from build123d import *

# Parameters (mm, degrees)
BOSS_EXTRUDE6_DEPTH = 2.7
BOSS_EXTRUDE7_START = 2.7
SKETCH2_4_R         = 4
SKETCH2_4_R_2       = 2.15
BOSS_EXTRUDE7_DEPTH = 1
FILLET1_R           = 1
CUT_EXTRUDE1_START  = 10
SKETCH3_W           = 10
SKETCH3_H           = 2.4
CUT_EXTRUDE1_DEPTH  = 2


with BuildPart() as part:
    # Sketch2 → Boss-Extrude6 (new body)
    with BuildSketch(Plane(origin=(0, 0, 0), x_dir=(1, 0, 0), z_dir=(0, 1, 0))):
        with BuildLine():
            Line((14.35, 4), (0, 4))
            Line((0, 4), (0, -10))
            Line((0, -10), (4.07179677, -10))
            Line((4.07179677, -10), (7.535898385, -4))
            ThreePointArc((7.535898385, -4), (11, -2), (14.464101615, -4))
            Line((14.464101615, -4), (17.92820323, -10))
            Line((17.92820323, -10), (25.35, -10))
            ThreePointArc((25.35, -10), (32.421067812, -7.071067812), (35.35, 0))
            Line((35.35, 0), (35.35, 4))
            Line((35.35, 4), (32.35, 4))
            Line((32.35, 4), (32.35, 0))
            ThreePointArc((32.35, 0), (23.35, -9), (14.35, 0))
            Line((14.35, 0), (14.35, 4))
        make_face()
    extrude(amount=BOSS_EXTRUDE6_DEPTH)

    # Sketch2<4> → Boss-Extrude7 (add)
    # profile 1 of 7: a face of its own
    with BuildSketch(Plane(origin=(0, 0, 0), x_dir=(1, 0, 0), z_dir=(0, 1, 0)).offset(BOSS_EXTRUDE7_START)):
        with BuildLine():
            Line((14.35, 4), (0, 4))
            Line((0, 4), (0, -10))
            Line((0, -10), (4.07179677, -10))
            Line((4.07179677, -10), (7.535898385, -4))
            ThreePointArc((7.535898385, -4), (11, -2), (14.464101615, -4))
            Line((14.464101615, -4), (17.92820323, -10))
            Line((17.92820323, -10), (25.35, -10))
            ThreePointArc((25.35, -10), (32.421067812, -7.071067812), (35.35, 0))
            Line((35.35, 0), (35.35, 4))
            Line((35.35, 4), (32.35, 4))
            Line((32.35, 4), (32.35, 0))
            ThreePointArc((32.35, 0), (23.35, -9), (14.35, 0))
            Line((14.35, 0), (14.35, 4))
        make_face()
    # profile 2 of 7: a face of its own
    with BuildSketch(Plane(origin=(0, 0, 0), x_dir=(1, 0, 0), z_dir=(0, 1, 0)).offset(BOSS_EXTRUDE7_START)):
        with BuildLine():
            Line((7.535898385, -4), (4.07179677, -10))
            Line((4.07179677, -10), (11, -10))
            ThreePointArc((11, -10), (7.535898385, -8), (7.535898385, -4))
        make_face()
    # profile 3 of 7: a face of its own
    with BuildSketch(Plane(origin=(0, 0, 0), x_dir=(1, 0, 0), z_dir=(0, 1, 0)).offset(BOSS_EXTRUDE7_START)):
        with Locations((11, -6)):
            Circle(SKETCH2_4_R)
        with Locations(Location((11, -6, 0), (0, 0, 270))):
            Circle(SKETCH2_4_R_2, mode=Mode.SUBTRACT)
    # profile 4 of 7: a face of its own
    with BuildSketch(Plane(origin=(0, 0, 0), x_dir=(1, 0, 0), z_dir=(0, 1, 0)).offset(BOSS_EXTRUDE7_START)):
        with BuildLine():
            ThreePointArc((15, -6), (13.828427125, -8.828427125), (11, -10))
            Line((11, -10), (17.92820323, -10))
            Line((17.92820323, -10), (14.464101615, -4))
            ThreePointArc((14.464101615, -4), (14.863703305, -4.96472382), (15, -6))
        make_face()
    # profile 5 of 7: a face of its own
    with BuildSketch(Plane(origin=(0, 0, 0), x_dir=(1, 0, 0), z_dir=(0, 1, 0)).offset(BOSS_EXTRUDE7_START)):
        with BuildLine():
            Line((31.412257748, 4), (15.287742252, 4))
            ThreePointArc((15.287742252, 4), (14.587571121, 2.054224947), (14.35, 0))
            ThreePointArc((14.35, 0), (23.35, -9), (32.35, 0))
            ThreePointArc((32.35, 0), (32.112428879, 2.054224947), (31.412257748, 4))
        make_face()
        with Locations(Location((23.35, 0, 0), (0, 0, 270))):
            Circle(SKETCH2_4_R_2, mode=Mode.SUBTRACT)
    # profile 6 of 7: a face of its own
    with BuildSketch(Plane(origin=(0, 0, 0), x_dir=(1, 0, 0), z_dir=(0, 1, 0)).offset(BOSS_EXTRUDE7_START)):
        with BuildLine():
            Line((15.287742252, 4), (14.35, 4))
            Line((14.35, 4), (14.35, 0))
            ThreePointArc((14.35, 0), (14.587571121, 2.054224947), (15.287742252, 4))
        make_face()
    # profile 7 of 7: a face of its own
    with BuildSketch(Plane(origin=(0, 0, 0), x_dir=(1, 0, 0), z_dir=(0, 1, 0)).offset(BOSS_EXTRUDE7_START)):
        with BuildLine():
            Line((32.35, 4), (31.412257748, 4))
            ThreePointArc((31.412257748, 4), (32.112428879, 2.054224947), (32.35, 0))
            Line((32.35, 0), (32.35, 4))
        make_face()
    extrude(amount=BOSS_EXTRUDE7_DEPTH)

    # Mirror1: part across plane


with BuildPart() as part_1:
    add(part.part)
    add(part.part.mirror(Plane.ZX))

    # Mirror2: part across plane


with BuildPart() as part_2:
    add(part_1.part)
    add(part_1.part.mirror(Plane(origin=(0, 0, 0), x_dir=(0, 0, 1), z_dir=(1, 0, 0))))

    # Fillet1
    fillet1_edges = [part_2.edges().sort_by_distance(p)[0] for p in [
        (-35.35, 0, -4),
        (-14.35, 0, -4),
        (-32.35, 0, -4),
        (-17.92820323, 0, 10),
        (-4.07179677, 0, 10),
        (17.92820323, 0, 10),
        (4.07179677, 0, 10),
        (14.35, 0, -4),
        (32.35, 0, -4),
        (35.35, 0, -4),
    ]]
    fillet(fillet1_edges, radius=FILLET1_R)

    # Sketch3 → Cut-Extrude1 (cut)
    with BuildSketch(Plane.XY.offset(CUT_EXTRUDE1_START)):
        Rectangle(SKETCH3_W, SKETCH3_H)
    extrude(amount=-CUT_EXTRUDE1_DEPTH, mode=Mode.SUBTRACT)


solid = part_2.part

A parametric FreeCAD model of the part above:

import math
import FreeCAD as App
import Part
import Sketcher
from FreeCAD import Vector
Q = App.Units.Quantity


def edges_at(feature, points):
    """Names of the edges that pass closest to the given points."""
    edges = feature.Shape.Edges
    near = lambda p: min(range(len(edges)), key=lambda i: edges[i].distToShape(Part.Vertex(*p))[0])
    return sorted({f"Edge{near(p) + 1}" for p in points})

doc = App.newDocument("Part")
body = doc.addObject("PartDesign::Body", "Body")

# Sketch on XZ plane
sketch1 = body.newObject("Sketcher::SketchObject", "Sketch")
sketch1.AttachmentSupport = (doc.getObject("XZ_Plane"), [""])
sketch1.MapMode = "FlatFace"
sketch1.addGeometry([
    Part.LineSegment(Vector(14.35, -4, 0), Vector(0, -4, 0)),  # 0
    Part.LineSegment(Vector(0, -4, 0), Vector(0, 10, 0)),  # 1
    Part.LineSegment(Vector(0, 10, 0), Vector(4.071797, 10, 0)),  # 2
    Part.LineSegment(Vector(4.071797, 10, 0), Vector(7.535898, 4, 0)),  # 3
    Part.ArcOfCircle(Part.Circle(Vector(11, 6, 0), Vector(0, 0, 1), 4), math.radians(-150), math.radians(-30)),  # 4
    Part.LineSegment(Vector(14.464102, 4, 0), Vector(17.928203, 10, 0)),  # 5
    Part.LineSegment(Vector(17.928203, 10, 0), Vector(25.35, 10, 0)),  # 6
    Part.ArcOfCircle(Part.Circle(Vector(25.35, 0, 0), Vector(0, 0, 1), 10), math.radians(0), math.radians(90)),  # 7
    Part.LineSegment(Vector(35.35, 0, 0), Vector(35.35, -4, 0)),  # 8
    Part.LineSegment(Vector(35.35, -4, 0), Vector(32.35, -4, 0)),  # 9
    Part.LineSegment(Vector(32.35, -4, 0), Vector(32.35, 0, 0)),  # 10
    Part.ArcOfCircle(Part.Circle(Vector(23.35, 0, 0), Vector(0, 0, 1), 9), math.radians(0), math.radians(180)),  # 11
    Part.LineSegment(Vector(14.35, 0, 0), Vector(14.35, -4, 0)),  # 12
], False)
sketch1.addConstraint([
    Sketcher.Constraint("Coincident", 0, 2, 1, 1),
    Sketcher.Constraint("Coincident", 1, 2, 2, 1),
    Sketcher.Constraint("Coincident", 2, 2, 3, 1),
    Sketcher.Constraint("Tangent", 3, 2, 4, 1),
    Sketcher.Constraint("Tangent", 4, 2, 5, 1),
    Sketcher.Constraint("Coincident", 5, 2, 6, 1),
    Sketcher.Constraint("Tangent", 6, 2, 7, 2),
    Sketcher.Constraint("Tangent", 7, 1, 8, 1),
    Sketcher.Constraint("Coincident", 8, 2, 9, 1),
    Sketcher.Constraint("Coincident", 9, 2, 10, 1),
    Sketcher.Constraint("Tangent", 10, 2, 11, 1),
    Sketcher.Constraint("Tangent", 11, 2, 12, 1),
    Sketcher.Constraint("Coincident", 12, 2, 0, 1),
    Sketcher.Constraint("Horizontal", 0),
    Sketcher.Constraint("Vertical", 1),
    Sketcher.Constraint("Horizontal", 2),
    Sketcher.Constraint("Horizontal", 6),
    Sketcher.Constraint("Vertical", 8),
    Sketcher.Constraint("Horizontal", 9),
    Sketcher.Constraint("Vertical", 10),
    Sketcher.Constraint("Vertical", 12),
    Sketcher.Constraint("PointOnObject", 7, 3, -1),
    Sketcher.Constraint("PointOnObject", 11, 3, -1),
    Sketcher.Constraint("PointOnObject", 0, 2, -2),
    Sketcher.Constraint("Horizontal", 3, 2, 4, 2),
    Sketcher.Constraint("Horizontal", 2, 2, 5, 2),
    Sketcher.Constraint("Horizontal", 0, 2, 8, 2),
    Sketcher.Constraint("Radius", 4, 4.0),
    Sketcher.Constraint("Radius", 7, 10.0),
    Sketcher.Constraint("Radius", 11, 9.0),
    Sketcher.Constraint("DistanceX", 9, 2, 9, 1, 3.0),
    Sketcher.Constraint("DistanceY", 1, 1, 1, 2, 14.0),
    Sketcher.Constraint("Angle", 3, Q("-60 deg")),
    Sketcher.Constraint("DistanceX", -1, 1, 4, 3, 11.0),
    Sketcher.Constraint("DistanceY", -1, 1, 4, 3, 6.0),
    Sketcher.Constraint("DistanceX", 0, 2, 0, 1, 14.35),
])
pad1 = body.newObject("PartDesign::Pad", "Pad")
pad1.Profile = sketch1
pad1.Length = 2.7
pad1.Reversed = True

# Sketch on XZ plane
sketch2 = body.newObject("Sketcher::SketchObject", "Sketch001")
sketch2.AttachmentSupport = (doc.getObject("XZ_Plane"), [""])
sketch2.MapMode = "FlatFace"
sketch2.AttachmentOffset = App.Placement(Vector(0, 0, -2.7), App.Rotation())
sketch2.addGeometry([
    Part.LineSegment(Vector(0, -4, 0), Vector(0, 10, 0)),  # 0
    Part.LineSegment(Vector(0, 10, 0), Vector(25.35, 10, 0)),  # 1
    Part.ArcOfCircle(Part.Circle(Vector(25.35, 0, 0), Vector(0, 0, 1), 10), math.radians(0), math.radians(90)),  # 2
    Part.LineSegment(Vector(35.35, 0, 0), Vector(35.35, -4, 0)),  # 3
    Part.LineSegment(Vector(35.35, -4, 0), Vector(0, -4, 0)),  # 4
    Part.Circle(Vector(11, 6, 0), Vector(0, 0, 1), 2.15),  # 5
    Part.Circle(Vector(23.35, 0, 0), Vector(0, 0, 1), 2.15),  # 6
], False)
sketch2.addConstraint([
    Sketcher.Constraint("Coincident", 0, 2, 1, 1),
    Sketcher.Constraint("Tangent", 1, 2, 2, 2),
    Sketcher.Constraint("Tangent", 2, 1, 3, 1),
    Sketcher.Constraint("Coincident", 3, 2, 4, 1),
    Sketcher.Constraint("Coincident", 4, 2, 0, 1),
    Sketcher.Constraint("Vertical", 0),
    Sketcher.Constraint("Horizontal", 1),
    Sketcher.Constraint("Vertical", 3),
    Sketcher.Constraint("Horizontal", 4),
    Sketcher.Constraint("Equal", 5, 6),
    Sketcher.Constraint("PointOnObject", 2, 3, -1),
    Sketcher.Constraint("PointOnObject", 6, 3, -1),
    Sketcher.Constraint("PointOnObject", 0, 2, -2),
    Sketcher.Constraint("Radius", 2, 10.0),
    Sketcher.Constraint("Diameter", 5, 4.3),
    Sketcher.Constraint("DistanceY", 0, 1, 0, 2, 14.0),
    Sketcher.Constraint("DistanceX", -1, 1, 5, 3, 11.0),
    Sketcher.Constraint("DistanceY", -1, 1, 5, 3, 6.0),
    Sketcher.Constraint("DistanceX", 6, 3, 2, 3, 2.0),
    Sketcher.Constraint("DistanceX", 1, 1, 1, 2, 25.35),
])
pad2 = body.newObject("PartDesign::Pad", "Pad001")
pad2.Profile = sketch2
pad2.Length = 1
pad2.Reversed = True
body2 = doc.addObject("PartDesign::Body", "Body001")
doc.recompute()

body2.BaseFeature = body
doc.recompute()

mirroring = doc.addObject("Part::Mirroring", "Mirroring")
mirroring.Source = body
mirroring.Base = Vector(0, 0, 0)
mirroring.Normal = Vector(0, 1, 0)
body3 = doc.addObject("PartDesign::Body", "Body002")
body3.BaseFeature = mirroring
boolean = body2.newObject("PartDesign::Boolean", "Boolean")
boolean.Type = "Fuse"
boolean.addObjects([body3])
doc.recompute()
body4 = doc.addObject("PartDesign::Body", "Body003")
doc.recompute()

body4.BaseFeature = body2
doc.recompute()

mirroring2 = doc.addObject("Part::Mirroring", "Mirroring001")
mirroring2.Source = body2
mirroring2.Base = Vector(0, 0, 0)
mirroring2.Normal = Vector(1, 0, 0)
body5 = doc.addObject("PartDesign::Body", "Body004")
body5.BaseFeature = mirroring2
boolean2 = body4.newObject("PartDesign::Boolean", "Boolean001")
boolean2.Type = "Fuse"
boolean2.addObjects([body5])
doc.recompute()

fillet = body4.newObject("PartDesign::Fillet", "Fillet")
fillet.Base = (boolean2, edges_at(boolean2, [
    (-35.35, 0, -4),
    (-14.35, 0, -4),
    (-32.35, 0, -4),
    (-17.928, 0, 10),
    (-4.072, 0, 10),
    (17.928, 0, 10),
    (4.072, 0, 10),
    (14.35, 0, -4),
    (32.35, 0, -4),
    (35.35, 0, -4),
]))
fillet.Radius = 1

# Sketch on XY plane
sketch3 = body4.newObject("Sketcher::SketchObject", "Sketch002")
sketch3.AttachmentSupport = (doc.getObject("XY_Plane003"), [""])
sketch3.MapMode = "FlatFace"
sketch3.AttachmentOffset = App.Placement(Vector(0, 0, 10), App.Rotation())
sketch3.addGeometry([
    Part.LineSegment(Vector(-5, 1.2, 0), Vector(-5, -1.2, 0)),
    Part.LineSegment(Vector(-5, -1.2, 0), Vector(5, -1.2, 0)),
    Part.LineSegment(Vector(5, -1.2, 0), Vector(5, 1.2, 0)),
    Part.LineSegment(Vector(5, 1.2, 0), Vector(-5, 1.2, 0)),
], False)
sketch3.addConstraint([
    Sketcher.Constraint("Coincident", 0, 2, 1, 1),
    Sketcher.Constraint("Coincident", 1, 2, 2, 1),
    Sketcher.Constraint("Coincident", 2, 2, 3, 1),
    Sketcher.Constraint("Coincident", 3, 2, 0, 1),
    Sketcher.Constraint("Vertical", 0),
    Sketcher.Constraint("Horizontal", 1),
    Sketcher.Constraint("Vertical", 2),
    Sketcher.Constraint("Horizontal", 3),
    Sketcher.Constraint("Symmetric", 0, 2, 2, 2, -1, 1),
    Sketcher.Constraint("DistanceX", 1, 1, 1, 2, 10.0),
    Sketcher.Constraint("DistanceY", 0, 2, 0, 1, 2.4),
])
pocket1 = body4.newObject("PartDesign::Pocket", "Pocket")
pocket1.Profile = sketch3
pocket1.Length = 2
mirroring.Visibility = False
mirroring2.Visibility = False

doc.recompute()
